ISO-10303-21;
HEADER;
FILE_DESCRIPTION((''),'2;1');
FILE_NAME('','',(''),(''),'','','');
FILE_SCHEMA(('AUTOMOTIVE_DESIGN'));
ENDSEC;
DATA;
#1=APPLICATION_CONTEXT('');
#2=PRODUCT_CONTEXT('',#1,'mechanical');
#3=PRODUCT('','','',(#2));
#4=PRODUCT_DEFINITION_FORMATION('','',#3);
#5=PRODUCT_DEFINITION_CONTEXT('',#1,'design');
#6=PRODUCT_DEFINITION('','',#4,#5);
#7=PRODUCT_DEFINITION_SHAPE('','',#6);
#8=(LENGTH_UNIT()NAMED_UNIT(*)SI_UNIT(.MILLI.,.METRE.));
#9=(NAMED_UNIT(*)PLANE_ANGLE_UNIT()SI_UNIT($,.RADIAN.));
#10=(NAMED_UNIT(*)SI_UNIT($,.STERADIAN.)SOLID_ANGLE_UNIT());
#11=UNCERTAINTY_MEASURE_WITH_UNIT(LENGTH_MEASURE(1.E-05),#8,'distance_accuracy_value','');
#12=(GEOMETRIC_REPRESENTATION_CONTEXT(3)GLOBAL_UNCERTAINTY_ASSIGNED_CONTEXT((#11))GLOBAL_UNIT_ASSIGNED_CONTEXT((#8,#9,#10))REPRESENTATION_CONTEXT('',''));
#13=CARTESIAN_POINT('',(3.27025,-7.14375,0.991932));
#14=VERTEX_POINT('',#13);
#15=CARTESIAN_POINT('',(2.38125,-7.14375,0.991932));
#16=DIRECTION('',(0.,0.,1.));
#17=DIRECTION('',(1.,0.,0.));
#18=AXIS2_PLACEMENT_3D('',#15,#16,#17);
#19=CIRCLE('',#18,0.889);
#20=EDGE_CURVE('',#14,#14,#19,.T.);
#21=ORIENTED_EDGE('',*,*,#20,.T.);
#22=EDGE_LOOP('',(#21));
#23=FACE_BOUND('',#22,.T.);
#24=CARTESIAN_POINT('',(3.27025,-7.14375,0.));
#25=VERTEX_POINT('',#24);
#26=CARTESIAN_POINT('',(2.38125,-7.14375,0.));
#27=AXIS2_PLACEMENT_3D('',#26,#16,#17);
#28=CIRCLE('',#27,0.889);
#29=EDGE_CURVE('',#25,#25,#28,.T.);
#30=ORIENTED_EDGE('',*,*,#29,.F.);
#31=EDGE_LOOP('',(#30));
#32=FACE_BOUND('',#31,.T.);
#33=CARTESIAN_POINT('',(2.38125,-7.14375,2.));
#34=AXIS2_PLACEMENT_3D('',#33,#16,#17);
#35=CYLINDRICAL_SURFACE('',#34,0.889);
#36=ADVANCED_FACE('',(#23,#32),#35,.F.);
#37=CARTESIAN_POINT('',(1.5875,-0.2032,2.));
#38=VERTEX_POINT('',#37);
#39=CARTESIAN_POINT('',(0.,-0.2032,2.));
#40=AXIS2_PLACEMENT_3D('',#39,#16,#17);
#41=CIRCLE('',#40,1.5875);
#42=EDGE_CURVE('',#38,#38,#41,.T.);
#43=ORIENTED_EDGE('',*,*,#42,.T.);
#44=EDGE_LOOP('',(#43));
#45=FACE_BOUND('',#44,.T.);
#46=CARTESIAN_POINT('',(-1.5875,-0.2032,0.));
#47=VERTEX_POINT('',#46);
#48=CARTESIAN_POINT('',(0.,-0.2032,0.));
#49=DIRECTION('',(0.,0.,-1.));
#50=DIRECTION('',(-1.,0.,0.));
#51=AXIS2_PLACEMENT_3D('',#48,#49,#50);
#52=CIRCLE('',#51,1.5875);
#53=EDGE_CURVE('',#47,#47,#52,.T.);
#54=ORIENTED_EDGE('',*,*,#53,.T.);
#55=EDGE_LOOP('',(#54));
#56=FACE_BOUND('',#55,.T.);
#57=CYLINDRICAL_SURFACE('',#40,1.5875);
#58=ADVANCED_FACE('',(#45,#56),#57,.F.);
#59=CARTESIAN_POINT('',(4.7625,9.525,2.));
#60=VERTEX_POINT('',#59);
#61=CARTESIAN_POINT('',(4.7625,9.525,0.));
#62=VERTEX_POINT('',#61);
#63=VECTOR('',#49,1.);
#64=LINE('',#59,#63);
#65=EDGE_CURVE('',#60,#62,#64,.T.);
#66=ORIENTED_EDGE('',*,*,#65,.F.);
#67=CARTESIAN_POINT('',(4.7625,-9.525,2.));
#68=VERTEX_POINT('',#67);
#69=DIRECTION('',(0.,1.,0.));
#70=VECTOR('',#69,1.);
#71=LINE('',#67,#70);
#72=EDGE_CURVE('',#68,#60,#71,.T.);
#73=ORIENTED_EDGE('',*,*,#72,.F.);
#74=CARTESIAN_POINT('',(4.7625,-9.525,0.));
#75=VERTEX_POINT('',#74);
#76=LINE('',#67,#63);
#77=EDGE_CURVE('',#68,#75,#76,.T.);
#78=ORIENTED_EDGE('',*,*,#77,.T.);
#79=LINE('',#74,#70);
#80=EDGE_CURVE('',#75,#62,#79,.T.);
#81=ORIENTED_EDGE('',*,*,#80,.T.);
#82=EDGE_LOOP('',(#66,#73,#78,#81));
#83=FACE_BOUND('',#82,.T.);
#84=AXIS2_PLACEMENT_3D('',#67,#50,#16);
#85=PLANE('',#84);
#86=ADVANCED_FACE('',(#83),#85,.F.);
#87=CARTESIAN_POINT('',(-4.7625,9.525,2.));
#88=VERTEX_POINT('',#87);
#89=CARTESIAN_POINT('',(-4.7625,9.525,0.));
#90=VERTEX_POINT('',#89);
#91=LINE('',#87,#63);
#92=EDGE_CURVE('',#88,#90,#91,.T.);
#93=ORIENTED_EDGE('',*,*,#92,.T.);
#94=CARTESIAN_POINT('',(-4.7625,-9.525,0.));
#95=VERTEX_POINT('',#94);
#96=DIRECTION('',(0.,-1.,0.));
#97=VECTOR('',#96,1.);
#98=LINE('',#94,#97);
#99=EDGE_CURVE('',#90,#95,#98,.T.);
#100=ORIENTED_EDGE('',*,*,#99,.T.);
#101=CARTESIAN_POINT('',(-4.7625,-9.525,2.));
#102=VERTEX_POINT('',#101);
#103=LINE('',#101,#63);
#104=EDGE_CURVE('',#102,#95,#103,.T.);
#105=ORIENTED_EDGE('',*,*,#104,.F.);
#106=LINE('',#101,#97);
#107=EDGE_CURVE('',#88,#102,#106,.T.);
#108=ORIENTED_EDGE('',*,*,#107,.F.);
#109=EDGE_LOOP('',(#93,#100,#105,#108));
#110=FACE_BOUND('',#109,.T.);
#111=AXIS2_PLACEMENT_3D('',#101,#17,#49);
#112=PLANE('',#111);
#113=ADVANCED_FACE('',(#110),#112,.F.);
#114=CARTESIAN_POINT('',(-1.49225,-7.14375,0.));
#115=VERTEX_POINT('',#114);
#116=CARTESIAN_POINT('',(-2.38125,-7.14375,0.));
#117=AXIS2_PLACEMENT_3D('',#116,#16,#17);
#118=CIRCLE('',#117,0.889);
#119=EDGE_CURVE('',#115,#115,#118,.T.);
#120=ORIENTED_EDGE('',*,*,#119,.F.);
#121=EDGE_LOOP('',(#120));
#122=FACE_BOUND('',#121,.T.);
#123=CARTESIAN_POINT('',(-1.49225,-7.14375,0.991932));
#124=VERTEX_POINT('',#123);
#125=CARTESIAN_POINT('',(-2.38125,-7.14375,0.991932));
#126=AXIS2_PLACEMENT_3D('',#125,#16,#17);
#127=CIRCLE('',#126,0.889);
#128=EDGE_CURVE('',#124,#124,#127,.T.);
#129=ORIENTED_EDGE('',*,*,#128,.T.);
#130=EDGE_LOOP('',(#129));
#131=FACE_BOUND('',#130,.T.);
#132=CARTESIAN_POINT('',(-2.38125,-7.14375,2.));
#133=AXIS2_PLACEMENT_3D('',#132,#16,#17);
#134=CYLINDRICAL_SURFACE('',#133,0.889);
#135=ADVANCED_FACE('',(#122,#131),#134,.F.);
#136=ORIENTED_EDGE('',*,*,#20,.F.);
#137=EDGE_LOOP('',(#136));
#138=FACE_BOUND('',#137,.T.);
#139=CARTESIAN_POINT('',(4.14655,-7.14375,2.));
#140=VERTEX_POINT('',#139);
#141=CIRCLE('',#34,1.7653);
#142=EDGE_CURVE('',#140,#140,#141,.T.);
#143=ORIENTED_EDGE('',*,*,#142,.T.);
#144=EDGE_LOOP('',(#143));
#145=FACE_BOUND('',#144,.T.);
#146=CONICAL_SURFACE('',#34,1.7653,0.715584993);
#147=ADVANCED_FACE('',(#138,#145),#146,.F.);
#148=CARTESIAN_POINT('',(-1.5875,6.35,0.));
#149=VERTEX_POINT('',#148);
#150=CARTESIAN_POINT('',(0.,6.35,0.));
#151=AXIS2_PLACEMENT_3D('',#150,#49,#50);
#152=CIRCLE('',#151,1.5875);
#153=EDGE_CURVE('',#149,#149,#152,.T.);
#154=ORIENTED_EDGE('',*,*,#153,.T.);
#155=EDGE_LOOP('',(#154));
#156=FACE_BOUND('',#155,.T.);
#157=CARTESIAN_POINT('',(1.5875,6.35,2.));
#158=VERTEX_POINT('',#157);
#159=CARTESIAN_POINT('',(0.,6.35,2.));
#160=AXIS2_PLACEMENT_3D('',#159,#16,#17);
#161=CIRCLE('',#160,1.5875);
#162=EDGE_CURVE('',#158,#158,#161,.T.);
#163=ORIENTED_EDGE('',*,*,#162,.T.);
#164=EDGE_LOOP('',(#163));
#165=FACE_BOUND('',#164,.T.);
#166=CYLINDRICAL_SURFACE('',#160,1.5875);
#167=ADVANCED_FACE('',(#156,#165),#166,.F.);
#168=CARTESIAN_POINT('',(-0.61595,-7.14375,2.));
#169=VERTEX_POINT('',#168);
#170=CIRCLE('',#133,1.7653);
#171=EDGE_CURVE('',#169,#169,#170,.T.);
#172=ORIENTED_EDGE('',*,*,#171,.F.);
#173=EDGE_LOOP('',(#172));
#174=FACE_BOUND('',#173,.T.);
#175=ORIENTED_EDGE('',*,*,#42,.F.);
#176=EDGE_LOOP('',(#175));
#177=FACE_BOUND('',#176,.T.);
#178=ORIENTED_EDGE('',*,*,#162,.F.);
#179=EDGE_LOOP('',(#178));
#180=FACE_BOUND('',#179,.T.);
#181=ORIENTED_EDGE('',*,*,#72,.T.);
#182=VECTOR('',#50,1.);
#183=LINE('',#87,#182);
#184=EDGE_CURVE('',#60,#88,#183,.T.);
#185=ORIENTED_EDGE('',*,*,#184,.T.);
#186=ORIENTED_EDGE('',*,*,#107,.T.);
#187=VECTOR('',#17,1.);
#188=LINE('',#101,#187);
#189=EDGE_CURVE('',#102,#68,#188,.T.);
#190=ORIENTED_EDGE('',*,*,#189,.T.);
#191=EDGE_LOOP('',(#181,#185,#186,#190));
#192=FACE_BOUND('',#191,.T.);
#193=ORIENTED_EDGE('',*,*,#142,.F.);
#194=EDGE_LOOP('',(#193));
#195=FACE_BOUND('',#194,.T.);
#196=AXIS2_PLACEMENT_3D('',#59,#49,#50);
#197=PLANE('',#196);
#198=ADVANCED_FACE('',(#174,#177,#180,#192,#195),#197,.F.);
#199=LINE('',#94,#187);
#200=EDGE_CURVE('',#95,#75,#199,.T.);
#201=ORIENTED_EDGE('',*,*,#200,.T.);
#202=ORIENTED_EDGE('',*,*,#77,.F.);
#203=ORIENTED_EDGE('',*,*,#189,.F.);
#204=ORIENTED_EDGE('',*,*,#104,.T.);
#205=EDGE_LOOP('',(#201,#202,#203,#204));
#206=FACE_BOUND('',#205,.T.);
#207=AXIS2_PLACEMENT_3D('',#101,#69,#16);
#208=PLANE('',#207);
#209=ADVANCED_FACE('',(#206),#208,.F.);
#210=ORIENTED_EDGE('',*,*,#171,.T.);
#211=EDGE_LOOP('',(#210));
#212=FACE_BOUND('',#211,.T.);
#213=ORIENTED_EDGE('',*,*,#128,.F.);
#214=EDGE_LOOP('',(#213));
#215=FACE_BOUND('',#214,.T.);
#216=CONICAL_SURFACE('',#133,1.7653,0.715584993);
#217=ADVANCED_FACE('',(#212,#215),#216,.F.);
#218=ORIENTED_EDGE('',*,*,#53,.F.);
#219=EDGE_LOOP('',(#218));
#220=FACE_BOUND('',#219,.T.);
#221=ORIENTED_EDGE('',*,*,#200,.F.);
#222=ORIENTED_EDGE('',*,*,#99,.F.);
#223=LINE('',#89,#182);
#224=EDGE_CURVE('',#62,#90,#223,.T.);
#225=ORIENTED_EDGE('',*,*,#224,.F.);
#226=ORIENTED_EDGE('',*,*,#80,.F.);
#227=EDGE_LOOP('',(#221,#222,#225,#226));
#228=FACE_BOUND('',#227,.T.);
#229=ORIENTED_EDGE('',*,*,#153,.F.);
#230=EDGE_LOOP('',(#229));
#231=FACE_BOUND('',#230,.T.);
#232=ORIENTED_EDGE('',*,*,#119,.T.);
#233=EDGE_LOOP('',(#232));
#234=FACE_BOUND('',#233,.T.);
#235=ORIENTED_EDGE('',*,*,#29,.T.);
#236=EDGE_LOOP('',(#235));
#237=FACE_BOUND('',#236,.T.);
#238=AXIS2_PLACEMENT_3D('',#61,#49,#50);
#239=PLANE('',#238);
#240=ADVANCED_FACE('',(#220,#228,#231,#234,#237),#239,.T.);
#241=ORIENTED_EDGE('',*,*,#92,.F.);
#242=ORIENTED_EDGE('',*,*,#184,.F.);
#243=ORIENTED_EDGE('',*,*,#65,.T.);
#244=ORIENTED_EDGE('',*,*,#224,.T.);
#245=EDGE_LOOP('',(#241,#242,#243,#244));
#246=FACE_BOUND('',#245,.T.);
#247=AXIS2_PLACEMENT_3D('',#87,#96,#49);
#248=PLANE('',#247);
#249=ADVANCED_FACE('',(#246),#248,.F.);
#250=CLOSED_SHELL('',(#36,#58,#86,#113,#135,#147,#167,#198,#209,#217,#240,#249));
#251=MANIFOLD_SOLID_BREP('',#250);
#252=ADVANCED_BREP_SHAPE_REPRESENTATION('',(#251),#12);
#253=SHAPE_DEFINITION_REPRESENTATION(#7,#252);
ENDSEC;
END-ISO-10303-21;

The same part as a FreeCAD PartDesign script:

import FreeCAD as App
import Part
import Sketcher

V = App.Vector
Q = App.Units.Quantity


def add_polygon(sketch, points):
    """Adds a closed chain of lines whose ends are joined by coincident constraints."""
    first, n = sketch.GeometryCount, len(points)
    for a, b in zip(points, points[1:] + points[:1]):
        sketch.addGeometry(Part.LineSegment(App.Vector(*a, 0), App.Vector(*b, 0)), False)
    for i in range(n):
        sketch.addConstraint(Sketcher.Constraint("Coincident", first + i, 2, first + (i + 1) % n, 1))

doc = App.newDocument("Part")
body = doc.addObject("PartDesign::Body", "Body")

# Sketch on XY plane
sketch1 = body.newObject("Sketcher::SketchObject", "Sketch")
sketch1.AttachmentSupport = (doc.getObject("XY_Plane"), [""])
sketch1.MapMode = "FlatFace"
add_polygon(sketch1, [(-4.7625, 9.525), (-4.7625, -9.525), (4.7625, -9.525), (4.7625, 9.525)])  # lines 0-3
sketch1.addConstraint([
    Sketcher.Constraint("Vertical", 0),
    Sketcher.Constraint("Horizontal", 1),
    Sketcher.Constraint("Vertical", 2),
    Sketcher.Constraint("Horizontal", 3),
    Sketcher.Constraint("Symmetric", 0, 2, 2, 2, -1, 1),
    Sketcher.Constraint("DistanceY", 0, 2, 0, 1, Q("0.75 in")),
    Sketcher.Constraint("DistanceX", 1, 1, 1, 2, Q("0.375 in")),
])
pad1 = body.newObject("PartDesign::Pad", "Pad")
pad1.Profile = sketch1
pad1.Length = 2

# Sketch on YZ plane
sketch2 = body.newObject("Sketcher::SketchObject", "Sketch001")
sketch2.AttachmentSupport = (doc.getObject("YZ_Plane"), [""])
sketch2.MapMode = "FlatFace"
sketch2.AttachmentOffset = App.Placement(V(0, 0, -0.09375 * 25.4), App.Rotation())
add_polygon(sketch2, [(-7.14375, 0), (-7.14375, 2), (-8.90905, 2), (-8.03275, 0.991932), (-8.03275, 0)])  # lines 0-4
sketch2.addGeometry(Part.LineSegment(V(-7.14375, 2, 0), V(-7.14375, 0, 0)), True)  # axis
sketch2.addConstraint([
    Sketcher.Constraint("Vertical", 0),
    Sketcher.Constraint("Horizontal", 1),
    Sketcher.Constraint("Vertical", 3),
    Sketcher.Constraint("Horizontal", 4),
    Sketcher.Constraint("Vertical", 5),
    Sketcher.Constraint("Coincident", 5, 1, 0, 2),
    Sketcher.Constraint("PointOnObject", 3, 2, -1),
    Sketcher.Constraint("PointOnObject", 5, 2, -1),
    Sketcher.Constraint("Angle", 2, Q("-49 deg")),
    Sketcher.Constraint("DistanceX", 4, 1, 4, 2, Q("0.035 in")),
    Sketcher.Constraint("DistanceX", 1, 2, 1, 1, Q("0.0695 in")),
    Sketcher.Constraint("DistanceX", 0, 2, -1, 1, Q("0.28125 in")),
    Sketcher.Constraint("DistanceY", 0, 1, 0, 2, Q("2 mm")),
])
groove = body.newObject("PartDesign::Groove", "Groove")
groove.Profile = sketch2
groove.ReferenceAxis = (sketch2, ["Axis0"])
groove.Angle = 360
doc.recompute()

linearpattern = body.newObject("PartDesign::LinearPattern", "LinearPattern")
linearpattern.Originals = [groove]
linearpattern.Direction = (doc.getObject("X_Axis"), [""])
linearpattern.Mode = "offset"
linearpattern.Offset = Q("0.1875 in")
linearpattern.Occurrences = 2
body.Tip = linearpattern

# Sketch on XY plane
sketch3 = body.newObject("Sketcher::SketchObject", "Sketch002")
sketch3.AttachmentSupport = (doc.getObject("XY_Plane"), [""])
sketch3.MapMode = "FlatFace"
sketch3.AttachmentOffset = App.Placement(V(0, 0, 2), App.Rotation())
sketch3.addGeometry([
    Part.Circle(V(0, 6.35, 0), V(0, 0, 1), 1.5875),
    Part.Circle(V(0, -0.2032, 0), V(0, 0, 1), 1.5875),
], False)
sketch3.addConstraint([
    Sketcher.Constraint("Equal", 0, 1),
    Sketcher.Constraint("PointOnObject", 0, 3, -2),
    Sketcher.Constraint("PointOnObject", 1, 3, -2),
    Sketcher.Constraint("Diameter", 0, Q("0.125 in")),
    Sketcher.Constraint("DistanceY", -1, 1, 0, 3, Q("0.25 in")),
    Sketcher.Constraint("DistanceY", 1, 3, -1, 1, Q("0.008 in")),
])
doc.recompute()
hole = body.newObject("PartDesign::Hole", "Hole")
hole.Profile = sketch3
hole.ThreadType = "None"
hole.Diameter = Q("0.125 in")
hole.DepthType = "Dimension"
hole.Depth = Q("0.16 in")
hole.DrillPoint = "Angled"
hole.DrillPointAngle = 118

doc.recompute()
